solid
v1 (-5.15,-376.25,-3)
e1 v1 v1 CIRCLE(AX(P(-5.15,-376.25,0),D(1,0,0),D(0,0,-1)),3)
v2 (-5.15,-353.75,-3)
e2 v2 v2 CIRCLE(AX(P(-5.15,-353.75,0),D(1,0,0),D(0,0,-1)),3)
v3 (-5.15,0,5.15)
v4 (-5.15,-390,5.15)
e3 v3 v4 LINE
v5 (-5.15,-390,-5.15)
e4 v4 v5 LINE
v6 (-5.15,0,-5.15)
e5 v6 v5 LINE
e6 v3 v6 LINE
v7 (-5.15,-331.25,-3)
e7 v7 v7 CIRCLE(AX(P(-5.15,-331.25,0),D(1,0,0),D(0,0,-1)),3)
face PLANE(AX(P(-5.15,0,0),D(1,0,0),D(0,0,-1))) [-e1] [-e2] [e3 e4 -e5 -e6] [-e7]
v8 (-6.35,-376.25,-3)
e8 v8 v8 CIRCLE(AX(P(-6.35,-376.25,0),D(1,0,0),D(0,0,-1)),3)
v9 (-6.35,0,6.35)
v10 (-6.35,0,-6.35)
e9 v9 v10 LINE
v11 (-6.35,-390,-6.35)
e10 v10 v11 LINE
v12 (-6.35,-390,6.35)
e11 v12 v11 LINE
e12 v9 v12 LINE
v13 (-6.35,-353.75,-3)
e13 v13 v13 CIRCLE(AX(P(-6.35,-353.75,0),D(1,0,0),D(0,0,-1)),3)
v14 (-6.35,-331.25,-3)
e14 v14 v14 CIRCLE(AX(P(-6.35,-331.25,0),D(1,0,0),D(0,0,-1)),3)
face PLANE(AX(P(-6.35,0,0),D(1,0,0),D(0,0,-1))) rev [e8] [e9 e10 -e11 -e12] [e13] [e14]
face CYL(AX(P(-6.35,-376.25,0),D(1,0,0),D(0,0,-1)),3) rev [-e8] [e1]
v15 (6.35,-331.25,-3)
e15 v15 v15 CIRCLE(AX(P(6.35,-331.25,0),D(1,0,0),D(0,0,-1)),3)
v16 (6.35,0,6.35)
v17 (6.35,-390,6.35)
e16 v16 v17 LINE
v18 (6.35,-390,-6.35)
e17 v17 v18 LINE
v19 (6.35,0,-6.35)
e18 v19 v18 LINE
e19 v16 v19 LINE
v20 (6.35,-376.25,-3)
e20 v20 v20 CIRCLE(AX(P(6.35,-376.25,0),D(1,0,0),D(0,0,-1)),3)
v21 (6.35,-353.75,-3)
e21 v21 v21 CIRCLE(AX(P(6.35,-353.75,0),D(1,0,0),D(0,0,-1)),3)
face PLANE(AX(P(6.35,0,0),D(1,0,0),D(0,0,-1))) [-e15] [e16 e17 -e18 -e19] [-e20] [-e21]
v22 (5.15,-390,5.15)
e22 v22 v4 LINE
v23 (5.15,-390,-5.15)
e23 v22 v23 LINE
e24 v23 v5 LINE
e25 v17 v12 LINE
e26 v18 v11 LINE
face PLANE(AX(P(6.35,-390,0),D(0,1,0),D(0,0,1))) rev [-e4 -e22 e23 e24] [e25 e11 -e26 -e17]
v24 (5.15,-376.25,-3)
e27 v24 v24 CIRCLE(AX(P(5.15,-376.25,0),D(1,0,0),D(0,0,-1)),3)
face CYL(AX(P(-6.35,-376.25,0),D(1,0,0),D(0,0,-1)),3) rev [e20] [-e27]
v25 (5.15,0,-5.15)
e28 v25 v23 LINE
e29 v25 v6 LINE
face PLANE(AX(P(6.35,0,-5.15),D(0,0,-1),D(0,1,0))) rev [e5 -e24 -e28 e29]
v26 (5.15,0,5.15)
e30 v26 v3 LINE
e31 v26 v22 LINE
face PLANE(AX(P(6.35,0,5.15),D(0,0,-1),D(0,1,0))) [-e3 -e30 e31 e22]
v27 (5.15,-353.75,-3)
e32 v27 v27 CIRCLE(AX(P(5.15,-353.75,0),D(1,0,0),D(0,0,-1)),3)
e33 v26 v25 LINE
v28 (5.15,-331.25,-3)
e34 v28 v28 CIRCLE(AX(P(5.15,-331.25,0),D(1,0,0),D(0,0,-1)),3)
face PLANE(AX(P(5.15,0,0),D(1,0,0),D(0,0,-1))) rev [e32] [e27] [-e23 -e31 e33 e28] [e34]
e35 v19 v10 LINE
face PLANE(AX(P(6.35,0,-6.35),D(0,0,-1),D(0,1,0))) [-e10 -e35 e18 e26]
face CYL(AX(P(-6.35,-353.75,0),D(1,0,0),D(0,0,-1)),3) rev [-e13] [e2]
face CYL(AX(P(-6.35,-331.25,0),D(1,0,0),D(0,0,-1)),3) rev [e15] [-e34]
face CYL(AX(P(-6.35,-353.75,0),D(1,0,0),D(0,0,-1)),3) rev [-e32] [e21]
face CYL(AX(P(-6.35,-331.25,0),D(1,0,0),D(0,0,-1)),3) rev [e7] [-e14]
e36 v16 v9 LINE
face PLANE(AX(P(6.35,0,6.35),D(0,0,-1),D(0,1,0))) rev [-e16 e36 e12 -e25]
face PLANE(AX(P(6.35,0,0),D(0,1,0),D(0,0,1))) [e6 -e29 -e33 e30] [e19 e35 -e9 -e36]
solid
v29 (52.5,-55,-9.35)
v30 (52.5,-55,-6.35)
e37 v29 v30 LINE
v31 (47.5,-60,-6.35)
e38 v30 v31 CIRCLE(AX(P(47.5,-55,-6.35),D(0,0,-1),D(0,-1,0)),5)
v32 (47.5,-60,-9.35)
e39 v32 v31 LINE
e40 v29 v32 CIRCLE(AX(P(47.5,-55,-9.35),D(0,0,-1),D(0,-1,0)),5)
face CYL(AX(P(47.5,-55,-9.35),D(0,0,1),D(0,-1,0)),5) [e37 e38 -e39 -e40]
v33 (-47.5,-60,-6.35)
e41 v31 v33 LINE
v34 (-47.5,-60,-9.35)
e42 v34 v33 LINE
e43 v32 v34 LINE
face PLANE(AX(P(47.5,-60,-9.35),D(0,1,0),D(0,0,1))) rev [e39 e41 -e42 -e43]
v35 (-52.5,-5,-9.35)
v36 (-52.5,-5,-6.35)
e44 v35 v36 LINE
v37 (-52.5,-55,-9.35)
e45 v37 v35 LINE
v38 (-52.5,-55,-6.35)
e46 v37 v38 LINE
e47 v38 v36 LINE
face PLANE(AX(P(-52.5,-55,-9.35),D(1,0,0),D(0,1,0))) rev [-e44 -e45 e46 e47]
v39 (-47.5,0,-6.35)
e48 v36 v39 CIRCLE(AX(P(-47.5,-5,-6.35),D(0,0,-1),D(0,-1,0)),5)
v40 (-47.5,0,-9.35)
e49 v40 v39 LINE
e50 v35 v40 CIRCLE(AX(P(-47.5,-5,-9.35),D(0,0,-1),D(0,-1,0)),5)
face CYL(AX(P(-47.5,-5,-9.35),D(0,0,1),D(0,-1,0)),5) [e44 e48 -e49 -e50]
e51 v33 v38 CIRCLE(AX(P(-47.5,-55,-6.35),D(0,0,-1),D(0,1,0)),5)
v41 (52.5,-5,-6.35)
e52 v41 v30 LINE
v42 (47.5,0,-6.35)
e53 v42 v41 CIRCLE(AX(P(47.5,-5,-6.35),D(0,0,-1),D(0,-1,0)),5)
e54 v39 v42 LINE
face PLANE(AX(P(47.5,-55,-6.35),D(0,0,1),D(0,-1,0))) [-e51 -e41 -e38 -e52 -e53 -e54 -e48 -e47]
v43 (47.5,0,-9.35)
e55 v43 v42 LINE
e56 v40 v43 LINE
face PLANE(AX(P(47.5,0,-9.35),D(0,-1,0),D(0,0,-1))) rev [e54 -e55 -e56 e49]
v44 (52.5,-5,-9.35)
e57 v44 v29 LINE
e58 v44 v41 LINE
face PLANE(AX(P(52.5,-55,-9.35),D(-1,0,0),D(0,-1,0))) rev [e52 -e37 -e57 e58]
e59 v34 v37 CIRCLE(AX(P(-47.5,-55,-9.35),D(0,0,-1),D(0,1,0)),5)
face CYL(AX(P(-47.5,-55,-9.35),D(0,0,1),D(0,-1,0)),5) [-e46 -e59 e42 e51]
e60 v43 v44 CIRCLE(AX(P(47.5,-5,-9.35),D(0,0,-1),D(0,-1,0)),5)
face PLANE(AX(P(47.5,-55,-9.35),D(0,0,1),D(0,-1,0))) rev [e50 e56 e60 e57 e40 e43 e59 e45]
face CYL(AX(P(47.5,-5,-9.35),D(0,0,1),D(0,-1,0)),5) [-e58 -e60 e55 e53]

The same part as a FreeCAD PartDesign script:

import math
import FreeCAD as App
import Part
import Sketcher
from FreeCAD import Vector
Q = App.Units.Quantity


def faces_at(feature, points):
    """Names of the faces that lie closest to the given points."""
    faces = feature.Shape.Faces
    near = lambda p: min(range(len(faces)), key=lambda i: faces[i].distToShape(Part.Vertex(*p))[0])
    return sorted({f"Face{near(p) + 1}" for p in points})


def add_polygon(sketch, points):
    """Adds a closed chain of lines whose ends are joined by coincident constraints."""
    first, n = sketch.GeometryCount, len(points)
    for a, b in zip(points, points[1:] + points[:1]):
        sketch.addGeometry(Part.LineSegment(App.Vector(*a, 0), App.Vector(*b, 0)), False)
    for i in range(n):
        sketch.addConstraint(Sketcher.Constraint("Coincident", first + i, 2, first + (i + 1) % n, 1))

doc = App.newDocument("Part")
params = doc.addObject("Spreadsheet::Sheet", "Params")
for row, (alias, value) in enumerate([
    ("sketch1_width", "390 mm"),
    ("sketch1_height", "12.7 mm"),
    ("pad1_length", "12.7 mm"),
    ("thickness_wall", "1.2 mm"),
    ("sketch2_diameter", "6 mm"),
    ("sketch3_radius", "5 mm"),
    ("sketch3_width", "95 mm"),
    ("sketch3_height", "50 mm"),
    ("pad2_length", "3 mm"),
], start=1):
    params.set(f"A{row}", alias)
    params.set(f"B{row}", "=" + value)
    params.setAlias(f"B{row}", alias)

body = doc.addObject("PartDesign::Body", "Body")

sketch1 = body.newObject("Sketcher::SketchObject", "Sketch")
sketch1.AttachmentSupport = (doc.getObject("YZ_Plane"), [""])
sketch1.MapMode = "FlatFace"
add_polygon(sketch1, [(0, 6), (-390, 6), (-390, -6), (0, -6)])
sketch1.addConstraint([
    Sketcher.Constraint("Horizontal", 0),
    Sketcher.Constraint("Vertical", 1),
    Sketcher.Constraint("Horizontal", 2),
    Sketcher.Constraint("Vertical", 3),
    Sketcher.Constraint("Symmetric", 2, 2, 3, 2, -1, 1),
    Sketcher.Constraint("DistanceX", 0, 2, 0, 1, Q("390 mm")),
    Sketcher.Constraint("DistanceY", 1, 2, 1, 1, Q("12.7 mm")),
])
sketch1.setExpression("Constraints[9]", "Params.sketch1_width")
sketch1.setExpression("Constraints[10]", "Params.sketch1_height")
pad1 = body.newObject("PartDesign::Pad", "Pad")
pad1.Profile = sketch1
pad1.setExpression("Length", "Params.pad1_length")
pad1.Midplane = True
doc.recompute()

thickness = body.newObject("PartDesign::Thickness", "Thickness")
thickness.Base = (pad1, faces_at(pad1, [(0, -390, 0), (0, 0, 0)]))
thickness.setExpression("Value", "Params.thickness_wall")
thickness.Reversed = True
thickness.Join = "Intersection"

sketch2 = body.newObject("Sketcher::SketchObject", "Sketch001")
sketch2.AttachmentSupport = (doc.getObject("YZ_Plane"), [""])
sketch2.MapMode = "FlatFace"
sketch2.addGeometry([
    Part.Circle(Vector(-376.2, 0, 0), Vector(0, 0, 1), 3),
    Part.Circle(Vector(-353.8, 0, 0), Vector(0, 0, 1), 3),
    Part.Circle(Vector(-331.2, 0, 0), Vector(0, 0, 1), 3),
], False)
sketch2.addConstraint([
    Sketcher.Constraint("Equal", 0, 1),
    Sketcher.Constraint("Equal", 1, 2),
    Sketcher.Constraint("PointOnObject", 0, 3, -1),
    Sketcher.Constraint("PointOnObject", 1, 3, -1),
    Sketcher.Constraint("PointOnObject", 2, 3, -1),
    Sketcher.Constraint("Diameter", 0, Q("6 mm")),
    Sketcher.Constraint("DistanceX", 0, 3, 2, 3, Q("45 mm")),
    Sketcher.Constraint("DistanceX", 0, 3, 1, 3, Q("22.5 mm")),
    Sketcher.Constraint("DistanceX", 0, 3, -1, 1, Q("376.25 mm")),
])
sketch2.setExpression("Constraints[5]", "Params.sketch2_diameter")
pocket1 = body.newObject("PartDesign::Pocket", "Pocket")
pocket1.Profile = sketch2
pocket1.Type = "ThroughAll"
pocket1.Midplane = True
body2 = doc.addObject("PartDesign::Body", "Body001")

sketch3 = body2.newObject("Sketcher::SketchObject", "Sketch002")
sketch3.AttachmentSupport = (doc.getObject("XY_Plane001"), [""])
sketch3.MapMode = "FlatFace"
sketch3.AttachmentOffset = App.Placement(Vector(0, 0, -6.35), App.Rotation())
sketch3.addGeometry([
    Part.LineSegment(Vector(48, -60, 0), Vector(-48, -60, 0)),
    Part.ArcOfCircle(Part.Circle(Vector(-48, -55, 0), Vector(0, 0, 1), 5), math.radians(180), math.radians(270)),
    Part.LineSegment(Vector(-52, -55, 0), Vector(-52, -5, 0)),
    Part.ArcOfCircle(Part.Circle(Vector(-48, -5, 0), Vector(0, 0, 1), 5), math.radians(90), math.radians(180)),
    Part.LineSegment(Vector(-48, 0, 0), Vector(48, 0, 0)),
    Part.ArcOfCircle(Part.Circle(Vector(48, -5, 0), Vector(0, 0, 1), 5), math.radians(0), math.radians(90)),
    Part.LineSegment(Vector(52, -5, 0), Vector(52, -55, 0)),
    Part.ArcOfCircle(Part.Circle(Vector(48, -55, 0), Vector(0, 0, 1), 5), math.radians(-90), math.radians(0)),
], False)
sketch3.addConstraint([
    Sketcher.Constraint("Tangent", 0, 2, 1, 2),
    Sketcher.Constraint("Tangent", 1, 1, 2, 1),
    Sketcher.Constraint("Tangent", 2, 2, 3, 2),
    Sketcher.Constraint("Tangent", 3, 1, 4, 1),
    Sketcher.Constraint("Tangent", 4, 2, 5, 2),
    Sketcher.Constraint("Tangent", 5, 1, 6, 1),
    Sketcher.Constraint("Tangent", 6, 2, 7, 2),
    Sketcher.Constraint("Tangent", 7, 1, 0, 1),
    Sketcher.Constraint("Horizontal", 0),
    Sketcher.Constraint("Vertical", 2),
    Sketcher.Constraint("Horizontal", 4),
    Sketcher.Constraint("Vertical", 6),
    Sketcher.Constraint("Equal", 1, 3),
    Sketcher.Constraint("Equal", 3, 5),
    Sketcher.Constraint("Equal", 5, 7),
    Sketcher.Constraint("Symmetric", 3, 1, 4, 2, -1, 1),
    Sketcher.Constraint("Radius", 1, Q("5 mm")),
    Sketcher.Constraint("DistanceX", 0, 2, 0, 1, Q("95 mm")),
    Sketcher.Constraint("DistanceY", 2, 1, 2, 2, Q("50 mm")),
])
sketch3.setExpression("Constraints[16]", "Params.sketch3_radius")
sketch3.setExpression("Constraints[17]", "Params.sketch3_width")
sketch3.setExpression("Constraints[18]", "Params.sketch3_height")
pad2 = body2.newObject("PartDesign::Pad", "Pad001")
pad2.Profile = sketch3
pad2.setExpression("Length", "Params.pad2_length")
pad2.Reversed = True

doc.recompute()
